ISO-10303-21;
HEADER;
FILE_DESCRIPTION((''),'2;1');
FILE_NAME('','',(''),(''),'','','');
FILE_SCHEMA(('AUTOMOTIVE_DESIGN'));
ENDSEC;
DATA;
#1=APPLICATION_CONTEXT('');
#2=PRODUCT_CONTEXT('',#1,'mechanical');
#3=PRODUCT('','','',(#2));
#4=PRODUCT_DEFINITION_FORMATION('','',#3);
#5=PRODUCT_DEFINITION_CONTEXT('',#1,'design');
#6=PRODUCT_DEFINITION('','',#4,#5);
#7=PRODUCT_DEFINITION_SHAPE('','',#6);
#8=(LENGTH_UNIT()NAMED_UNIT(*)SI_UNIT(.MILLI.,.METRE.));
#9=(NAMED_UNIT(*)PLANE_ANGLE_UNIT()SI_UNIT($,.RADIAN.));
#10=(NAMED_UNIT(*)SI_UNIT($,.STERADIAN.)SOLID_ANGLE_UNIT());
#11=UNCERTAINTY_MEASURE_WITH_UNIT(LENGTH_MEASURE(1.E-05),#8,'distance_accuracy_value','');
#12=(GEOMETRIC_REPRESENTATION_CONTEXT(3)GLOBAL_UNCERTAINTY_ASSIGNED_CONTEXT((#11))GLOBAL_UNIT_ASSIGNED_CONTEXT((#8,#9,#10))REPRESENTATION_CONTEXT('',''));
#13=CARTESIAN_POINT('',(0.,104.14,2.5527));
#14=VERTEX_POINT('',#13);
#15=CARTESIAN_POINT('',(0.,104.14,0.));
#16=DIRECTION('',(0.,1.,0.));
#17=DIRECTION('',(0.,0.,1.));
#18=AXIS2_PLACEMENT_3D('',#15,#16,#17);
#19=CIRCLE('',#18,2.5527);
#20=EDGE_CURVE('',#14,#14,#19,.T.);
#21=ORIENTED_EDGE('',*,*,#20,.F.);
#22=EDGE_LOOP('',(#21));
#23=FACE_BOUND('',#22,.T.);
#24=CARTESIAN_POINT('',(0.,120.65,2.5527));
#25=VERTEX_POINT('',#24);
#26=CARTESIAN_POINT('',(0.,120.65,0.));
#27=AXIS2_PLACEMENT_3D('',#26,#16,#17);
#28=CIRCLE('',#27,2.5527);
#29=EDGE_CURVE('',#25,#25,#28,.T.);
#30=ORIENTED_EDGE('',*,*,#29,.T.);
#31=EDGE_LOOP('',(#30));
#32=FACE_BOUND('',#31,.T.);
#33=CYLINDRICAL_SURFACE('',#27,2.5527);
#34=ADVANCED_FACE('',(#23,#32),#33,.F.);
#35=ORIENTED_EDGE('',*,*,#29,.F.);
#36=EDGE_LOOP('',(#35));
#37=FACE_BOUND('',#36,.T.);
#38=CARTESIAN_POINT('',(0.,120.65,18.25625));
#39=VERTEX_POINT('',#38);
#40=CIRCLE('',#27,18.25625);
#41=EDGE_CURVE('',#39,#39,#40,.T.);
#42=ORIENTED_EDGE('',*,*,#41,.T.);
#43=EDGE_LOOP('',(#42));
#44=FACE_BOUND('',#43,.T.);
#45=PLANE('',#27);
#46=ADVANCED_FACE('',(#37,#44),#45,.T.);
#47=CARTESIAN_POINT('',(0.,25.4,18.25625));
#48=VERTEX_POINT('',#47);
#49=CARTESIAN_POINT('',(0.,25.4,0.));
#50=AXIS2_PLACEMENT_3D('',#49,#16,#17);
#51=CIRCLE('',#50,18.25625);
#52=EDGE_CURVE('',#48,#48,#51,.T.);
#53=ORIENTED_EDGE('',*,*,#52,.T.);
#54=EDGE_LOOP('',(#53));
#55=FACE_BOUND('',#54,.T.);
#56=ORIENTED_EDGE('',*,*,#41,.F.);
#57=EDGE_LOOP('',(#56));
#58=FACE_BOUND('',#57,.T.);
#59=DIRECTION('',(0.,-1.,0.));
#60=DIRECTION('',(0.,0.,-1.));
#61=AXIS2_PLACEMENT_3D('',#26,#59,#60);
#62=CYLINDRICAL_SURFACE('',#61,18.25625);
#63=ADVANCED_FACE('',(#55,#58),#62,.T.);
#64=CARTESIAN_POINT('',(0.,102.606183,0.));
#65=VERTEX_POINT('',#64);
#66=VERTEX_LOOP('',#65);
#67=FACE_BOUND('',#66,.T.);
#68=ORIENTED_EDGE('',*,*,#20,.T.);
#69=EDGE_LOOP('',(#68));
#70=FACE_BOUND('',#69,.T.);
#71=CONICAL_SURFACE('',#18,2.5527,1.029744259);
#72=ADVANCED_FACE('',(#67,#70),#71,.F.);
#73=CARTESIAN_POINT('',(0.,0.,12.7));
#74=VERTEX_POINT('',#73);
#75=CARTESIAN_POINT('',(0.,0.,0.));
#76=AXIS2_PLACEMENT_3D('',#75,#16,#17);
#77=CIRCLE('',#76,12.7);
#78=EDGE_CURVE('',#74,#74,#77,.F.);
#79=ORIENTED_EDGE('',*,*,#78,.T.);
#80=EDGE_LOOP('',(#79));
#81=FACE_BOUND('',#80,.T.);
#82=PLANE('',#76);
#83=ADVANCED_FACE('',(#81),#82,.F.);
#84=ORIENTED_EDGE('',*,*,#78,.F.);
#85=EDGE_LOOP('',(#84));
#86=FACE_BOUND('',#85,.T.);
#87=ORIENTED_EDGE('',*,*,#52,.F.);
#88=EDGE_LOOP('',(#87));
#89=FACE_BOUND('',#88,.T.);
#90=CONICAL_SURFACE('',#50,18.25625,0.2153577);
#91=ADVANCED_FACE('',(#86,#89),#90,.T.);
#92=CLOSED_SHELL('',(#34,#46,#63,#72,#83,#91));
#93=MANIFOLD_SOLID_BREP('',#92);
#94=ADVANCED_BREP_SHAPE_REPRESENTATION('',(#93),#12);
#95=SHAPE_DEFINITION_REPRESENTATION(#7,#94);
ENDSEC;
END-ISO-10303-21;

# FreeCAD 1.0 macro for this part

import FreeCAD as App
import Part
import Sketcher

V = App.Vector
Q = App.Units.Quantity


def edges_at(feature, points):
    """Names of the edges that pass closest to the given points."""
    edges = feature.Shape.Edges
    near = lambda p: min(range(len(edges)), key=lambda i: edges[i].distToShape(Part.Vertex(*p))[0])
    return sorted({f"Edge{near(p) + 1}" for p in points})

doc = App.newDocument("Part")
body = doc.addObject("PartDesign::Body", "Body")

sketch1 = body.newObject("Sketcher::SketchObject", "Sketch")
sketch1.AttachmentSupport = (doc.getObject("XZ_Plane"), [""])
sketch1.MapMode = "FlatFace"
sketch1.addGeometry(Part.Circle(V(0, 0, 0), V(0, 0, 1), 18), False)
sketch1.addConstraint([
    Sketcher.Constraint("Coincident", 0, 3, -1, 1),
    Sketcher.Constraint("Diameter", 0, Q("1.4375 in")),
])
pad1 = body.newObject("PartDesign::Pad", "Pad")
pad1.Profile = sketch1
pad1.Length = Q("4.75 in")
pad1.Reversed = True
doc.recompute()

chamfer = body.newObject("PartDesign::Chamfer", "Chamfer")
chamfer.Base = (pad1, edges_at(pad1, [(-18.256, 0, 0)]))
chamfer.ChamferType = "Two distances"
chamfer.Size = Q("0.21875 in")
chamfer.Size2 = Q("1 in")
chamfer.FlipDirection = True

sketch2 = body.newObject("Sketcher::SketchObject", "Sketch001")
sketch2.AttachmentSupport = (doc.getObject("XZ_Plane"), [""])
sketch2.MapMode = "FlatFace"
sketch2.AttachmentOffset = App.Placement(V(0, 0, -4.75 * 25.4), App.Rotation())
sketch2.addGeometry(Part.Circle(V(0, 0, 0), V(0, 0, 1), 2.6), False)
sketch2.addConstraint([
    Sketcher.Constraint("Coincident", 0, 3, -1, 1),
    Sketcher.Constraint("Diameter", 0, Q("0.201 in")),
])
doc.recompute()
hole = body.newObject("PartDesign::Hole", "Hole")
hole.Profile = sketch2
hole.ThreadType = "None"
hole.Diameter = Q("0.201 in")
hole.DepthType = "Dimension"
hole.Depth = Q("0.65 in")
hole.DrillPoint = "Angled"
hole.DrillPointAngle = 118
hole.Reversed = True

doc.recompute()
